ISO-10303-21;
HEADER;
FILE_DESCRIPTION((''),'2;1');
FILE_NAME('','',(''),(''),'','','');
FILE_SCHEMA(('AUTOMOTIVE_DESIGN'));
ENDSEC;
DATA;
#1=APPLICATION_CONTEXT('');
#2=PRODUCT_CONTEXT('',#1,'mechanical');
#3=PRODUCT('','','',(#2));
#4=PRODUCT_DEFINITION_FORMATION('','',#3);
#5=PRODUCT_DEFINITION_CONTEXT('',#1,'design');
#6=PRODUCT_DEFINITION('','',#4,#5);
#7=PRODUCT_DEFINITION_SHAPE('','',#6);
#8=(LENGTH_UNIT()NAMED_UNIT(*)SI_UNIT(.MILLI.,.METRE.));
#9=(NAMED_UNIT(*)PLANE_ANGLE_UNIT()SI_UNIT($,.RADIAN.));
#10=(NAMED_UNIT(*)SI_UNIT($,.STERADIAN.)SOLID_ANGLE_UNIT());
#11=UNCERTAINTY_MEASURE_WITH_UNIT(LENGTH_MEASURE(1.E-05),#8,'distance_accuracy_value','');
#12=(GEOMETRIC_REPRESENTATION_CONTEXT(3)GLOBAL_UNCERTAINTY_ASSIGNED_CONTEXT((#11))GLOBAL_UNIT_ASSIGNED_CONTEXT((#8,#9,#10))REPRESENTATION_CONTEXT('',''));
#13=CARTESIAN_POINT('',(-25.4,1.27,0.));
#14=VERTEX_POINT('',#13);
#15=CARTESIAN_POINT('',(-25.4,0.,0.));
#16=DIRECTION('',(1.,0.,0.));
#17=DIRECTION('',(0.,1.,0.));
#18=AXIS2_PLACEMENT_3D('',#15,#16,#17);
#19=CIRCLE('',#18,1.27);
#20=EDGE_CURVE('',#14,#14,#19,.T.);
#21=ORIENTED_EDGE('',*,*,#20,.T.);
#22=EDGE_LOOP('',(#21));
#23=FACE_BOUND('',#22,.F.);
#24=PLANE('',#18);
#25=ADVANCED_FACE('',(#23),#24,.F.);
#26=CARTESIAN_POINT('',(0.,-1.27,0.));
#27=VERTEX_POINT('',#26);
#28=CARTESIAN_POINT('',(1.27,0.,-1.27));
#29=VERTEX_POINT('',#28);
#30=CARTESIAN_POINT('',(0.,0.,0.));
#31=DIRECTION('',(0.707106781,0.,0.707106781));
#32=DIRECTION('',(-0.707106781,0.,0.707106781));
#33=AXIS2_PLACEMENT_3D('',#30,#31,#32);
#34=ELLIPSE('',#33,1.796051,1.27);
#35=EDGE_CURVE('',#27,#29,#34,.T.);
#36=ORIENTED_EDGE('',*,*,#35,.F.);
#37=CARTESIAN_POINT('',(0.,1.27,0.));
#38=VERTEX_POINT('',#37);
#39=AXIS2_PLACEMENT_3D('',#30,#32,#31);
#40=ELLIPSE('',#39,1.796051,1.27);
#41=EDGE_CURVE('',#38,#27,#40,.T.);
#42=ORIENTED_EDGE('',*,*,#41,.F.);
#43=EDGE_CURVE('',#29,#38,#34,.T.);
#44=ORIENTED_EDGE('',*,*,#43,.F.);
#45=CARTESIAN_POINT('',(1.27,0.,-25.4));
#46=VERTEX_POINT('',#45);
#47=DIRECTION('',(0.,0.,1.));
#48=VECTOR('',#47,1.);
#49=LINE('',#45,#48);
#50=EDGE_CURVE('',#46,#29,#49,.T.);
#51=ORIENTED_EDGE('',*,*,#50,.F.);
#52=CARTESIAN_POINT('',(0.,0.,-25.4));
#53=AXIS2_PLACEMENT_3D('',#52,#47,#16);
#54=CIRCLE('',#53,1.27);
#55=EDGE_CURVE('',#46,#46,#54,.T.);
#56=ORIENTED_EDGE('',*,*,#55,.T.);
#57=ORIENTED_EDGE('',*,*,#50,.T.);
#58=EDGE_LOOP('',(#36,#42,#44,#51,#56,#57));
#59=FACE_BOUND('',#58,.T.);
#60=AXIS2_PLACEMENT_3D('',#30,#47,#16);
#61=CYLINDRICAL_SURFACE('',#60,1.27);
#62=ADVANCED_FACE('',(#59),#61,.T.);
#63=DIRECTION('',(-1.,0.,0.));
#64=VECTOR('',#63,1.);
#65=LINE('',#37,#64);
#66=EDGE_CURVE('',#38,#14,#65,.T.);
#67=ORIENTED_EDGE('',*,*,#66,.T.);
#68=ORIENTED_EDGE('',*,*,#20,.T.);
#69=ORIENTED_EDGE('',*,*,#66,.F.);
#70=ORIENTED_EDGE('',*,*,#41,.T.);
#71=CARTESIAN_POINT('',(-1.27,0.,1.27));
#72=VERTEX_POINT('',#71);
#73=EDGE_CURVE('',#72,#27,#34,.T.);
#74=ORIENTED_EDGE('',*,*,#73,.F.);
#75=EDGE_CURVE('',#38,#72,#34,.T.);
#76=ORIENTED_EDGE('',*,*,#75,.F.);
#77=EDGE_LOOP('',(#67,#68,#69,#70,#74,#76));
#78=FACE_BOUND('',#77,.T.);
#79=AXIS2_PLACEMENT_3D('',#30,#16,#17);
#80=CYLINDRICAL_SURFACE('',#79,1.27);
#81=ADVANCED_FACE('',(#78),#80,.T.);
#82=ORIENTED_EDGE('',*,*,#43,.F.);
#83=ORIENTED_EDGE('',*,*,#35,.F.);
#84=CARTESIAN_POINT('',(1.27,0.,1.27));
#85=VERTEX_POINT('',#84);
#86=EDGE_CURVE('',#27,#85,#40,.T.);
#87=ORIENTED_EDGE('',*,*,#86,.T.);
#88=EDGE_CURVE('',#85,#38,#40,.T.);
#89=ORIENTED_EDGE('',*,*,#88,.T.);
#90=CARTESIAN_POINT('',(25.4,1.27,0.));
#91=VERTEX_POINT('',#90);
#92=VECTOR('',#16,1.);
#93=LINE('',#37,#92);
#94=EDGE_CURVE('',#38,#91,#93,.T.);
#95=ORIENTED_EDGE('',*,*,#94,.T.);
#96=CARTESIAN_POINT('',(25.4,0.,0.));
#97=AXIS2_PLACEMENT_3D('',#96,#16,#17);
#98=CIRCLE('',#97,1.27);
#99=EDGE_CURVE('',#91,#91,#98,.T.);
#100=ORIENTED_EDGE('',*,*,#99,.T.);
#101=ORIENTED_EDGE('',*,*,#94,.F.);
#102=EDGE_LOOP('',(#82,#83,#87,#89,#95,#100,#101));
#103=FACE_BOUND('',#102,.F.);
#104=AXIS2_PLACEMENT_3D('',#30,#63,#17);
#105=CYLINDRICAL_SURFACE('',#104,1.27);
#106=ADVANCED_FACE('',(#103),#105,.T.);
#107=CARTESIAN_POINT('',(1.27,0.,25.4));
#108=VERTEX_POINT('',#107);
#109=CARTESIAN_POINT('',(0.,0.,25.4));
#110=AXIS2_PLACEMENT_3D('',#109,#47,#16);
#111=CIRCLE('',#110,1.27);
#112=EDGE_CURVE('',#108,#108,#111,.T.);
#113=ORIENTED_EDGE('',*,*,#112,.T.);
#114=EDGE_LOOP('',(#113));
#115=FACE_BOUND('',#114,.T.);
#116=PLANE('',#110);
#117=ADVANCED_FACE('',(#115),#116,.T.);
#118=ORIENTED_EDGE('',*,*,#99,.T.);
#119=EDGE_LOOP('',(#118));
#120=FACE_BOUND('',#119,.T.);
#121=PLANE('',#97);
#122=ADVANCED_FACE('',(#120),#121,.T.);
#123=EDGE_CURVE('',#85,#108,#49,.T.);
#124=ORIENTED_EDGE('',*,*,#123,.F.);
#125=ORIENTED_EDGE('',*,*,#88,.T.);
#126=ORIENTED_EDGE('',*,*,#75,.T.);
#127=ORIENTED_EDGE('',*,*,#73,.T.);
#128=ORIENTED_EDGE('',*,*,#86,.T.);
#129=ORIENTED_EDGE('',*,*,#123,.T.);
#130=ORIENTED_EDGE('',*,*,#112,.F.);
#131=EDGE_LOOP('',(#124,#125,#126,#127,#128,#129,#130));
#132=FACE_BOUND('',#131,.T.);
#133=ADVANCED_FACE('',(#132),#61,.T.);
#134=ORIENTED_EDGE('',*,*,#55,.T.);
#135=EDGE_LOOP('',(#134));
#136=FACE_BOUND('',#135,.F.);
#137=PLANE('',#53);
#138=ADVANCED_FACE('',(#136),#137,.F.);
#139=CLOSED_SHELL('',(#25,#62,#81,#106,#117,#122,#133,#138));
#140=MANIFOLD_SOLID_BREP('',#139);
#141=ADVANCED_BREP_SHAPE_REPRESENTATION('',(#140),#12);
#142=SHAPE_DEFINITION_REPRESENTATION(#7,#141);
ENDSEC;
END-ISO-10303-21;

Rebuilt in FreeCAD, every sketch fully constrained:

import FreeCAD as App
import Part
import Sketcher
Q = App.Units.Quantity

doc = App.newDocument("Part")
body = doc.addObject("PartDesign::Body", "Body")

# Sketch on XY plane
sketch1 = doc.addObject("Sketcher::SketchObject", "Sketch")
body.addObject(sketch1)
sketch1.AttachmentSupport = (doc.XY_Plane, [""])
sketch1.MapMode = "FlatFace"
sketch1.addGeometry(Part.Circle(App.Vector(0, 0, 0), App.Vector(0, 0, 1), 1.3), False)
sketch1.addConstraint([
    Sketcher.Constraint("Coincident", 0, 3, -1, 1),
    Sketcher.Constraint("Diameter", 0, Q("0.1 in")),
])
pad1 = doc.addObject("PartDesign::Pad", "Pad")
body.addObject(pad1)
pad1.Profile = sketch1
pad1.Type = "TwoLengths"
pad1.Length = Q("1 in")
pad1.Length2 = Q("1 in")

# Sketch on YZ plane
sketch2 = doc.addObject("Sketcher::SketchObject", "Sketch001")
body.addObject(sketch2)
sketch2.AttachmentSupport = (doc.YZ_Plane, [""])
sketch2.MapMode = "FlatFace"
sketch2.addGeometry(Part.Circle(App.Vector(0, 0, 0), App.Vector(0, 0, 1), 1.3), False)
sketch2.addConstraint([
    Sketcher.Constraint("Coincident", 0, 3, -1, 1),
    Sketcher.Constraint("Diameter", 0, Q("0.1 in")),
])
pad2 = doc.addObject("PartDesign::Pad", "Pad001")
body.addObject(pad2)
pad2.Profile = sketch2
pad2.Type = "TwoLengths"
pad2.Length = Q("1 in")
pad2.Length2 = Q("1 in")

doc.recompute()
